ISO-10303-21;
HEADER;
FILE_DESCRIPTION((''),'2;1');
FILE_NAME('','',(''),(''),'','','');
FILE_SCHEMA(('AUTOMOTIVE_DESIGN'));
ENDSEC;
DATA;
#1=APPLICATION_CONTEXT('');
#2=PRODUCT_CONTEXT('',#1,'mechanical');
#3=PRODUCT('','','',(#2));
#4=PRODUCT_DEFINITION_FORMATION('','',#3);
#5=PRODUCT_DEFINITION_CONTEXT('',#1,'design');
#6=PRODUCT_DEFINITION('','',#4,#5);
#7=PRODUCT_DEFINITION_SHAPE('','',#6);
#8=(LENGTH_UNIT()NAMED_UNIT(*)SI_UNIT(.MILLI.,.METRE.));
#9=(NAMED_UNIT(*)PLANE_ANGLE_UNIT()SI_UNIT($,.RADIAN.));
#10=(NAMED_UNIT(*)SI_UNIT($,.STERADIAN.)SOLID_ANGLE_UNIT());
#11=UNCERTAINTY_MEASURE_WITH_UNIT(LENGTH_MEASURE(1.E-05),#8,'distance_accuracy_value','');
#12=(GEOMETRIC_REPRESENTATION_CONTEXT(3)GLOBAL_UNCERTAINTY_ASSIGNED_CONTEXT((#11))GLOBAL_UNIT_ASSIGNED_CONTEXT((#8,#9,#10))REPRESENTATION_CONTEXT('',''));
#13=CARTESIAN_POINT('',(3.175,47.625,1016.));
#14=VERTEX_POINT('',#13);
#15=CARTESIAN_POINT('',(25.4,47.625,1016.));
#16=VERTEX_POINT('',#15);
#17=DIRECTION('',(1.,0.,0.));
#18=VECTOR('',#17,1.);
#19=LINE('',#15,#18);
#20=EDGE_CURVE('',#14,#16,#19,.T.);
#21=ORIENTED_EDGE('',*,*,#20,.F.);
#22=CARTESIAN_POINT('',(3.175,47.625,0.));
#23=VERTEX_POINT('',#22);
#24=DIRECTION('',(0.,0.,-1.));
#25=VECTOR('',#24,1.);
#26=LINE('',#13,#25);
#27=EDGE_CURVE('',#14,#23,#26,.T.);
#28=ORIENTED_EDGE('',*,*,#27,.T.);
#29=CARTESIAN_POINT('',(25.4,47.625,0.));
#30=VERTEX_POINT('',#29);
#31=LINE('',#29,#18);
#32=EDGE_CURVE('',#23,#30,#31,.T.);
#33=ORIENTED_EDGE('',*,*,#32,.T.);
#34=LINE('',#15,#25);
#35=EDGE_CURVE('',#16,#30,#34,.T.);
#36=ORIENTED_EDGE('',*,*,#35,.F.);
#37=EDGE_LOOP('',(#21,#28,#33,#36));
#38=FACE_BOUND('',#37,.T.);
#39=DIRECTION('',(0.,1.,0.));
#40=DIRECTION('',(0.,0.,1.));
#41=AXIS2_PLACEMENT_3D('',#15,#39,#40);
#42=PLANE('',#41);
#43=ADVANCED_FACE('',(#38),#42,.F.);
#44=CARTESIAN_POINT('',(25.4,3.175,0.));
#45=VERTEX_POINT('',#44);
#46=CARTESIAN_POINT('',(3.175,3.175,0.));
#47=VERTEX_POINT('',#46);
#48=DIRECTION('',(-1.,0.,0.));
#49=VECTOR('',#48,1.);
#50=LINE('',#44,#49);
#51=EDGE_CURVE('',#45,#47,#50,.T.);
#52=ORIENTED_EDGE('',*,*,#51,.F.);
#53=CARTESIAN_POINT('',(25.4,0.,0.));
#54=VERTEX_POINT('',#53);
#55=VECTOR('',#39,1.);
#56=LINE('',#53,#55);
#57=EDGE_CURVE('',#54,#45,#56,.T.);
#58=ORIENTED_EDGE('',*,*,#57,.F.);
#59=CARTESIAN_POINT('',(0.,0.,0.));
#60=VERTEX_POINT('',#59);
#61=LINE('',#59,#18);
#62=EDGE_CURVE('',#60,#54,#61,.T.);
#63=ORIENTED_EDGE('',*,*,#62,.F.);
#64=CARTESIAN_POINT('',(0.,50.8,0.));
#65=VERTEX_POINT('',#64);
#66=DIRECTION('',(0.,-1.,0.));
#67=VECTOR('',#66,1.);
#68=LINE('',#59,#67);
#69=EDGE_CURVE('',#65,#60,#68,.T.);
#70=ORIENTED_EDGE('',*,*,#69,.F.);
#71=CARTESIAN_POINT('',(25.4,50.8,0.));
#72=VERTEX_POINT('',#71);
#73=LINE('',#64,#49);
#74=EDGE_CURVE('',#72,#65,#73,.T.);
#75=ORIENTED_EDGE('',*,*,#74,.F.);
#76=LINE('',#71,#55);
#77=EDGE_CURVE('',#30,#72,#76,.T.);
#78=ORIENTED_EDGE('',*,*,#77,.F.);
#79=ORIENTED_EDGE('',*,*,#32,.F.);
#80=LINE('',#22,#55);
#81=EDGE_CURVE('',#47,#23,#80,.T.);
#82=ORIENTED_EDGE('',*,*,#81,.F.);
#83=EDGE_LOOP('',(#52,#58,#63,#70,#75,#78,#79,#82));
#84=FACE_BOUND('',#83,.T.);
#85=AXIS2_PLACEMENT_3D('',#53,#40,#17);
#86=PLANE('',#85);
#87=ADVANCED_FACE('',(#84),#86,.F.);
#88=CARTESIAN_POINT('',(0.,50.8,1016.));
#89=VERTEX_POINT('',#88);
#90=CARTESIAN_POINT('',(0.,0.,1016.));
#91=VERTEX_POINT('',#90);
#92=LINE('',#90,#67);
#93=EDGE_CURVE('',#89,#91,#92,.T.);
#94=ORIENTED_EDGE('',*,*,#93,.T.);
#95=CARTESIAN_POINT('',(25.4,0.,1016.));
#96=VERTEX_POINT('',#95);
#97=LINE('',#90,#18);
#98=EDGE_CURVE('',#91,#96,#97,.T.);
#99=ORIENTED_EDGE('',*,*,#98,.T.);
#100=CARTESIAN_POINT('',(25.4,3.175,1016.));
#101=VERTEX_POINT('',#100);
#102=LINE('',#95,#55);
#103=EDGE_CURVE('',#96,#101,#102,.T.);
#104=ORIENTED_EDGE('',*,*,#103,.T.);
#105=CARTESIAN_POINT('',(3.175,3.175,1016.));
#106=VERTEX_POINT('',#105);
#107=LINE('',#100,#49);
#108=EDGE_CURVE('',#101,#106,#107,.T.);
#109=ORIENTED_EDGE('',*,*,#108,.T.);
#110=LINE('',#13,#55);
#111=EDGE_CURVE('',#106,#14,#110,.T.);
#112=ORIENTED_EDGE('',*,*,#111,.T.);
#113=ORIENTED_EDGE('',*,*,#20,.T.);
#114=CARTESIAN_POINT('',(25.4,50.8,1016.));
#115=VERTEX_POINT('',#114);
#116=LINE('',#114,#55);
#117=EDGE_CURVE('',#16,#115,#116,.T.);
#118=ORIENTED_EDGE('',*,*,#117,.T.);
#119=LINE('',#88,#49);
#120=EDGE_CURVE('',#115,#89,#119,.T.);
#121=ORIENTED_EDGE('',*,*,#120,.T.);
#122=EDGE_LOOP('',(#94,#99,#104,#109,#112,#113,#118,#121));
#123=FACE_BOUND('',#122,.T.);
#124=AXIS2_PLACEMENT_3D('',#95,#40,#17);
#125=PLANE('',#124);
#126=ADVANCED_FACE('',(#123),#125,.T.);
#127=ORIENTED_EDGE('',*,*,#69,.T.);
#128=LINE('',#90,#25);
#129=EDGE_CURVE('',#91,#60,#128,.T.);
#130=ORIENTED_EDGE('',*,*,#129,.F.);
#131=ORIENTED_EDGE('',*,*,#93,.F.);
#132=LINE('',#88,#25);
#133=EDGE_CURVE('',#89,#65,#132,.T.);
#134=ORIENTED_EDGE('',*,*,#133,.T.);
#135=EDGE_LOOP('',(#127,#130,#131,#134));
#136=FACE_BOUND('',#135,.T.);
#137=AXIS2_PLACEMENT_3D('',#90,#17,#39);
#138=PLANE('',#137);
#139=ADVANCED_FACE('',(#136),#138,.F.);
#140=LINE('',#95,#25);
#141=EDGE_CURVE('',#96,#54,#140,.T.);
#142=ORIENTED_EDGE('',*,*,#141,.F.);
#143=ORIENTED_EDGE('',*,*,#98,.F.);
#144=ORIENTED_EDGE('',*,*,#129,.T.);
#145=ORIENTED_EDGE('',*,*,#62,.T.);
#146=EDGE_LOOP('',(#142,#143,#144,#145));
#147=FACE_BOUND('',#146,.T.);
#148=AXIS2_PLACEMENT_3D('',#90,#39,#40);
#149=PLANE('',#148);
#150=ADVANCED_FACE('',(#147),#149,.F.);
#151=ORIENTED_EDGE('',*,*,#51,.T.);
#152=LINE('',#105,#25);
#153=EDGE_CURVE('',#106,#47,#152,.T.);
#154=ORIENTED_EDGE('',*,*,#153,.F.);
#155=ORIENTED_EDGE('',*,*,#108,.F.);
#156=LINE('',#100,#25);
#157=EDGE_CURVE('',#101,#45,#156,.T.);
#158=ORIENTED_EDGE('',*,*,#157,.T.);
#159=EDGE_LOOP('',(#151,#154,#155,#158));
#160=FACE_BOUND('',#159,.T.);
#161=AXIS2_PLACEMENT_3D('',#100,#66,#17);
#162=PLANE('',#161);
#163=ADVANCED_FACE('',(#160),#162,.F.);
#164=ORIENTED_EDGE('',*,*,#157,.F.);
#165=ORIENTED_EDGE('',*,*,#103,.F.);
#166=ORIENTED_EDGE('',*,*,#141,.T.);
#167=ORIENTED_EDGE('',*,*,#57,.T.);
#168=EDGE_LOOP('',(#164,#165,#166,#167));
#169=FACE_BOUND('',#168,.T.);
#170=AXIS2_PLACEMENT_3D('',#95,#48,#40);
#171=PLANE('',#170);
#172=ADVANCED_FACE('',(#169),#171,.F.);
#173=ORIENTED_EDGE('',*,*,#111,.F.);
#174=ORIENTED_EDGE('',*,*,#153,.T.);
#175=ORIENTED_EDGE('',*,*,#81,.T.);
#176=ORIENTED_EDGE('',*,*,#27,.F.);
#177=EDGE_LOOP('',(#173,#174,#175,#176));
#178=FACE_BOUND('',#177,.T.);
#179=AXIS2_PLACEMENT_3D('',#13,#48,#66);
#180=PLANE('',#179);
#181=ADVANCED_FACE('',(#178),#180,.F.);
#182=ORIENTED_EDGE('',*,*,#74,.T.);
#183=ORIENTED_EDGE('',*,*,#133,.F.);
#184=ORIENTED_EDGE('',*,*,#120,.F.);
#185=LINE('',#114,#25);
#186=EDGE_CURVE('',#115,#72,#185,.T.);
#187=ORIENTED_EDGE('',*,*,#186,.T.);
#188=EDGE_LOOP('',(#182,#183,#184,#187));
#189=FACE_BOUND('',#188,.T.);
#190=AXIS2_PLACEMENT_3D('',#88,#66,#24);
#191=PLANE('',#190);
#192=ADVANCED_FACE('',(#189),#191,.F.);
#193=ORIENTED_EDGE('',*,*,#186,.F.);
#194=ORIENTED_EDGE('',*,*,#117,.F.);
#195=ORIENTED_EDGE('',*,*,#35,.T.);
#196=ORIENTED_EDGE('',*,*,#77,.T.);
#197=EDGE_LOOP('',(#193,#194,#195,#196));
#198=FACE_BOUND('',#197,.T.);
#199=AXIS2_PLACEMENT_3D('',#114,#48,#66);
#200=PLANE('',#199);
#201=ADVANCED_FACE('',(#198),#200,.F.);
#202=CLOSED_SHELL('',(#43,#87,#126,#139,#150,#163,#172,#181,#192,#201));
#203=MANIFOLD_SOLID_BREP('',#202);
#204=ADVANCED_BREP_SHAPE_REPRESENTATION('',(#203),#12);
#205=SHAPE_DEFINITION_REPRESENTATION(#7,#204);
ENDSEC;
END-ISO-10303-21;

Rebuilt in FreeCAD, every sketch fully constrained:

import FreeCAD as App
import Part
import Sketcher

V = App.Vector
Q = App.Units.Quantity


def add_polygon(sketch, points):
    """Adds a closed chain of lines whose ends are joined by coincident constraints."""
    first, n = sketch.GeometryCount, len(points)
    for a, b in zip(points, points[1:] + points[:1]):
        sketch.addGeometry(Part.LineSegment(App.Vector(*a, 0), App.Vector(*b, 0)), False)
    for i in range(n):
        sketch.addConstraint(Sketcher.Constraint("Coincident", first + i, 2, first + (i + 1) % n, 1))

doc = App.newDocument("Part")
body = doc.addObject("PartDesign::Body", "Body")

# Sketch on XY plane
sketch1 = doc.addObject("Sketcher::SketchObject", "Sketch")
body.addObject(sketch1)
sketch1.AttachmentSupport = (doc.XY_Plane, [""])
sketch1.MapMode = "FlatFace"
add_polygon(sketch1, [(0, 50.8), (0, 0), (25.4, 0), (25.4, 3.2), (3.2, 3.2), (3.2, 47.6), (25.4, 47.6), (25.4, 50.8)])  # lines 0-7
sketch1.addConstraint(Sketcher.Constraint("Vertical", 0))
sketch1.addConstraint(Sketcher.Constraint("Horizontal", 1))
sketch1.addConstraint(Sketcher.Constraint("Vertical", 2))
sketch1.addConstraint(Sketcher.Constraint("Horizontal", 3))
sketch1.addConstraint(Sketcher.Constraint("Vertical", 4))
sketch1.addConstraint(Sketcher.Constraint("Horizontal", 5))
sketch1.addConstraint(Sketcher.Constraint("Vertical", 6))
sketch1.addConstraint(Sketcher.Constraint("Horizontal", 7))
sketch1.addConstraint(Sketcher.Constraint("Coincident", 0, 2, -1, 1))
sketch1.addConstraint(Sketcher.Constraint("Vertical", 2, 2, 5, 2))
sketch1.addConstraint(Sketcher.Constraint("Equal", 2, 6))
sketch1.addConstraint(Sketcher.Constraint("DistanceX", 1, 1, 1, 2, Q("1 in")))
sketch1.addConstraint(Sketcher.Constraint("DistanceY", 0, 2, 0, 1, Q("2 in")))
sketch1.addConstraint(Sketcher.Constraint("DistanceY", 4, 1, 4, 2, Q("1.75 in")))
sketch1.addConstraint(Sketcher.Constraint("DistanceX", 3, 2, 3, 1, Q("0.875 in")))
pad1 = doc.addObject("PartDesign::Pad", "Pad")
body.addObject(pad1)
pad1.Profile = sketch1
pad1.Length = Q("40 in")

doc.recompute()
